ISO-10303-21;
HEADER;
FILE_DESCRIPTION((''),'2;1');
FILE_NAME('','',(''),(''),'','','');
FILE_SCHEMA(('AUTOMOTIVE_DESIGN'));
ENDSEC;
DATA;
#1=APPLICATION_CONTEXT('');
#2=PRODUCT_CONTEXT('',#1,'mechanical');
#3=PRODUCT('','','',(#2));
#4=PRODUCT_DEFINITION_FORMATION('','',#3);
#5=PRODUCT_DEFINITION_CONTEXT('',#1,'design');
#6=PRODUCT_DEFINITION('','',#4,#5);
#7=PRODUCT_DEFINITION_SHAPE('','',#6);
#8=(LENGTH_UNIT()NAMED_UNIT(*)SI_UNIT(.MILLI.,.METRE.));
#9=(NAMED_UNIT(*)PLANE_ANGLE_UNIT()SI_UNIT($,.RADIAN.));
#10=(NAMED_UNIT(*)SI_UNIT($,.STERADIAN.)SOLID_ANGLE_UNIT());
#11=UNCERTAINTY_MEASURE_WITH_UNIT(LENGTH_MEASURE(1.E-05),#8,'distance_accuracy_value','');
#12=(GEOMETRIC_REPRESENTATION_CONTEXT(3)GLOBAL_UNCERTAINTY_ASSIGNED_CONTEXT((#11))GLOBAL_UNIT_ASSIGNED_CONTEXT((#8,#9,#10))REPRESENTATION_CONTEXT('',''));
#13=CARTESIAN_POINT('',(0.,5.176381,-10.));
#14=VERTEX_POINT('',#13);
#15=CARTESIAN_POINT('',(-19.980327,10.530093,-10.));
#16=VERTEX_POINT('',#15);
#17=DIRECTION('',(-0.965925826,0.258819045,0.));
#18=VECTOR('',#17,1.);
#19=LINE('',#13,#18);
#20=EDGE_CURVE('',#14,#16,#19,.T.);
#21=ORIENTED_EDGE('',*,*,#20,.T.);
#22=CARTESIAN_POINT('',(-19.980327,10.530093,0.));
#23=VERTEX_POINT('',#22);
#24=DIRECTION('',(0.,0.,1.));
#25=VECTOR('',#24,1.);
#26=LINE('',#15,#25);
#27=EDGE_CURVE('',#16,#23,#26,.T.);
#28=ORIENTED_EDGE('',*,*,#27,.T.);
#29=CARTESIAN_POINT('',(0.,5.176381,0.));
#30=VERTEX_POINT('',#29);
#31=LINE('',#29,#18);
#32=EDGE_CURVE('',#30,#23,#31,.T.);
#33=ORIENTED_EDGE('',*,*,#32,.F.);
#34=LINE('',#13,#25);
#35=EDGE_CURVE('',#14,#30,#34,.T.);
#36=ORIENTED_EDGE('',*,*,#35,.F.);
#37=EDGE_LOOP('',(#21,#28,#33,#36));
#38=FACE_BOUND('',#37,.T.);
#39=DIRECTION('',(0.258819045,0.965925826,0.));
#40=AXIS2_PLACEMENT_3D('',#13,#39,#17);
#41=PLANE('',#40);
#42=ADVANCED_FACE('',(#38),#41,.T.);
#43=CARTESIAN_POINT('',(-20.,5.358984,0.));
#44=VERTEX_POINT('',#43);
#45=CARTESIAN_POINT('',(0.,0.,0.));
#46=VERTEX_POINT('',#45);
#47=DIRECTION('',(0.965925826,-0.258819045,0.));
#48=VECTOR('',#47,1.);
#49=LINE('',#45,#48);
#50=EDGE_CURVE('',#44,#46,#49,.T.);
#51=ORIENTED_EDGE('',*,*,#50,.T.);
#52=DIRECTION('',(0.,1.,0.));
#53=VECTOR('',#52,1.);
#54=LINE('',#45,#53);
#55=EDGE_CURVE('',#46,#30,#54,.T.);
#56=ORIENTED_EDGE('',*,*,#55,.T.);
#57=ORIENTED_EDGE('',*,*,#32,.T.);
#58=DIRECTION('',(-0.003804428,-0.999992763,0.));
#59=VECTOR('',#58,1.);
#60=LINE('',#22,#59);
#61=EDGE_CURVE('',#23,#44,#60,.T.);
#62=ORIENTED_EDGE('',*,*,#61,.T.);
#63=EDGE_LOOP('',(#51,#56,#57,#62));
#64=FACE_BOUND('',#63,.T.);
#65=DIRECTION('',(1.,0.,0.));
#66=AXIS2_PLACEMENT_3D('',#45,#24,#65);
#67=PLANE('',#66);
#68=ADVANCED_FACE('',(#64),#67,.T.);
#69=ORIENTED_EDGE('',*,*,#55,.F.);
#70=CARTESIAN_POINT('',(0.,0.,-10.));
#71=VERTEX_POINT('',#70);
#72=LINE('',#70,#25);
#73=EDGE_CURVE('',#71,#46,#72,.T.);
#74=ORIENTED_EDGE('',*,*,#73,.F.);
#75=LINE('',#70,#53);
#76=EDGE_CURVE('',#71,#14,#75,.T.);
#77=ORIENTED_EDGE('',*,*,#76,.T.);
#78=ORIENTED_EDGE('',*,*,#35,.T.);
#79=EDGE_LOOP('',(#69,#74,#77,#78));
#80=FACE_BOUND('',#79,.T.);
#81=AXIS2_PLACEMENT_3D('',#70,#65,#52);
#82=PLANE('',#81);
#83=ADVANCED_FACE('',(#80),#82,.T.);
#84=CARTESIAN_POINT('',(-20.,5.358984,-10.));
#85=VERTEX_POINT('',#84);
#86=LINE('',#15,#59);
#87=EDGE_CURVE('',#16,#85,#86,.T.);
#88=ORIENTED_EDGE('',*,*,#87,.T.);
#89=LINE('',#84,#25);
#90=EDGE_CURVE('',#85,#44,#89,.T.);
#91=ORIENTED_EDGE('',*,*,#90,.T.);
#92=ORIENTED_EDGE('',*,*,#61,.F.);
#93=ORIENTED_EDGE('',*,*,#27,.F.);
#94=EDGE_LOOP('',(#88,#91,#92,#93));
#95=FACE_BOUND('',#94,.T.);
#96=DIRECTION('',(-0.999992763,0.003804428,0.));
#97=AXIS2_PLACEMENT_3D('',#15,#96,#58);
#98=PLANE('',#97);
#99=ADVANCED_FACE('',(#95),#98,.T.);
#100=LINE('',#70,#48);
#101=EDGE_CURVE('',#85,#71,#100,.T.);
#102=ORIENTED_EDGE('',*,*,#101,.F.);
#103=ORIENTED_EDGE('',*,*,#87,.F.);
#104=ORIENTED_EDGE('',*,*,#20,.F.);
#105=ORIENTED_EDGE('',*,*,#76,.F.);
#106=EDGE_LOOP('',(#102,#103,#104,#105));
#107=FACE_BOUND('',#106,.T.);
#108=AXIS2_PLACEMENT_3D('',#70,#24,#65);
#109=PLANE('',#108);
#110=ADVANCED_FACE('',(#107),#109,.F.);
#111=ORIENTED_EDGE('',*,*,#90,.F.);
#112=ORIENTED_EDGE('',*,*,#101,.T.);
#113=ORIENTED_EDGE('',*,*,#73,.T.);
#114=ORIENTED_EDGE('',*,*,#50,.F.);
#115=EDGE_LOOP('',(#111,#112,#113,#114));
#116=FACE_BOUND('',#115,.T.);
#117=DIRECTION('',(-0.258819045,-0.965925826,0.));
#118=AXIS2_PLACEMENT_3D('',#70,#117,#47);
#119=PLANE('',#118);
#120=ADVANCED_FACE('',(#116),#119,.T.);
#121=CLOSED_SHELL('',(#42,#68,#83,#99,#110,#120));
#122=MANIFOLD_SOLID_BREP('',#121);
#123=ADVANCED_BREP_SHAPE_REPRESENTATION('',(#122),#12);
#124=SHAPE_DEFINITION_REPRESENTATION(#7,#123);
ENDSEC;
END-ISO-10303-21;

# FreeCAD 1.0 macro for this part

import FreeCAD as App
import Part
import Sketcher
from FreeCAD import Vector
Q = App.Units.Quantity


def add_polygon(sketch, points):
    """Adds a closed chain of lines whose ends are joined by coincident constraints."""
    first, n = sketch.GeometryCount, len(points)
    for a, b in zip(points, points[1:] + points[:1]):
        sketch.addGeometry(Part.LineSegment(App.Vector(*a, 0), App.Vector(*b, 0)), False)
    for i in range(n):
        sketch.addConstraint(Sketcher.Constraint("Coincident", first + i, 2, first + (i + 1) % n, 1))

doc = App.newDocument("Part")
body = doc.addObject("PartDesign::Body", "Body")

# Sketch on XY plane
sketch1 = body.newObject("Sketcher::SketchObject", "Sketch")
sketch1.AttachmentSupport = (doc.getObject("XY_Plane"), [""])
sketch1.MapMode = "FlatFace"
add_polygon(sketch1, [(0, 0), (0, 5), (-20, 11), (-20, 5)])  # lines 0-3
sketch1.addConstraint(Sketcher.Constraint("Vertical", 0))
sketch1.addConstraint(Sketcher.Constraint("Coincident", 3, 2, -1, 1))
sketch1.addConstraint(Sketcher.Constraint("Parallel", 1, 3))
sketch1.addConstraint(Sketcher.Constraint("Angle", 1, Q("165 deg")))
sketch1.addConstraint(Sketcher.Constraint("DistanceX", 2, 2, -1, 1, 20.0))
sketch1.addConstraint(Sketcher.Constraint("DistanceY", 0, 1, 0, 2, 5.176381))
sketch1.addConstraint(Sketcher.Constraint("DistanceY", 2, 2, 1, 2, 5.171109))
pad1 = body.newObject("PartDesign::Pad", "Pad")
pad1.Profile = sketch1
pad1.Length = 10
pad1.Reversed = True

doc.recompute()
